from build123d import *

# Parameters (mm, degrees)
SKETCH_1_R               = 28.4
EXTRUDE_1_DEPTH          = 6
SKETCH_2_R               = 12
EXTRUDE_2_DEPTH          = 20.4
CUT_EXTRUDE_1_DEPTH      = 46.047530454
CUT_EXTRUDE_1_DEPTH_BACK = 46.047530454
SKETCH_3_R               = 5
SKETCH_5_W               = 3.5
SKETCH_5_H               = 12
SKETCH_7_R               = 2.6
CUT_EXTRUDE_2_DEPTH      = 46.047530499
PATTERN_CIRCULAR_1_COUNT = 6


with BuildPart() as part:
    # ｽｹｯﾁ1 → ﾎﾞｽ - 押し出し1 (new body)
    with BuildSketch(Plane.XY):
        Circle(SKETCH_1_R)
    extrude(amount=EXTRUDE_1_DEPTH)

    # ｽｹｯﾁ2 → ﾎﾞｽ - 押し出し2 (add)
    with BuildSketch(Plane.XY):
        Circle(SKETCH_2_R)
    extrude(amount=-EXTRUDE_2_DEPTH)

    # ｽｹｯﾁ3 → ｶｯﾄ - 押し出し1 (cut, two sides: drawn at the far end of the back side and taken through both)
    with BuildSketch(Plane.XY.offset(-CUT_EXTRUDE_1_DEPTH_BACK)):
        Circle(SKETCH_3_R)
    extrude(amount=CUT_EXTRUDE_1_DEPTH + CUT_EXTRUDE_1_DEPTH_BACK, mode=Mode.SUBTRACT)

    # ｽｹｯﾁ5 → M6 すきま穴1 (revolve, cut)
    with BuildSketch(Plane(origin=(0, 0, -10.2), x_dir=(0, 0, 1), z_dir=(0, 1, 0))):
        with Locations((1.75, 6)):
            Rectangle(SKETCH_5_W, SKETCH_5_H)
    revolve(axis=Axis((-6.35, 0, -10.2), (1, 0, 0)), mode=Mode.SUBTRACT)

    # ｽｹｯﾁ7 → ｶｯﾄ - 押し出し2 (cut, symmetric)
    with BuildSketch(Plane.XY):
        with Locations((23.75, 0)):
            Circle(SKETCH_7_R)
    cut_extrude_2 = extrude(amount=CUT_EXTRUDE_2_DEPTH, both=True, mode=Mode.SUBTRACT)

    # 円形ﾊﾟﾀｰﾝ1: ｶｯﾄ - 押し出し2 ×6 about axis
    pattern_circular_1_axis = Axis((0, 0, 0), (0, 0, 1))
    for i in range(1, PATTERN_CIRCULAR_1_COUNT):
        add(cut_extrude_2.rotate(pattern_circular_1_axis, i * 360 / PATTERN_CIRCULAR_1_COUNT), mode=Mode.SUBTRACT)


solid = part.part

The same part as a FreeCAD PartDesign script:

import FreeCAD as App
import Part
import Sketcher
from FreeCAD import Vector

doc = App.newDocument("Part")
body = doc.addObject("PartDesign::Body", "Body")

sketch1 = body.newObject("Sketcher::SketchObject", "Sketch")
sketch1.AttachmentSupport = (doc.getObject("XY_Plane"), [""])
sketch1.MapMode = "FlatFace"
sketch1.addGeometry(Part.Circle(Vector(0, 0, 0), Vector(0, 0, 1), 28), False)
sketch1.addConstraint([
    Sketcher.Constraint("Coincident", 0, 3, -1, 1),
    Sketcher.Constraint("Diameter", 0, 56.8),
])
pad1 = body.newObject("PartDesign::Pad", "Pad")
pad1.Profile = sketch1
pad1.Length = 6

sketch2 = body.newObject("Sketcher::SketchObject", "Sketch001")
sketch2.AttachmentSupport = (doc.getObject("XY_Plane"), [""])
sketch2.MapMode = "FlatFace"
sketch2.addGeometry(Part.Circle(Vector(0, 0, 0), Vector(0, 0, 1), 12), False)
sketch2.addConstraint([
    Sketcher.Constraint("Coincident", 0, 3, -1, 1),
    Sketcher.Constraint("Diameter", 0, 24.0),
])
pad2 = body.newObject("PartDesign::Pad", "Pad001")
pad2.Profile = sketch2
pad2.Length = 20.4
pad2.Reversed = True

sketch3 = body.newObject("Sketcher::SketchObject", "Sketch002")
sketch3.AttachmentSupport = (doc.getObject("XY_Plane"), [""])
sketch3.MapMode = "FlatFace"
sketch3.addGeometry(Part.Circle(Vector(0, 0, 0), Vector(0, 0, 1), 5), False)
sketch3.addConstraint([
    Sketcher.Constraint("Coincident", 0, 3, -1, 1),
    Sketcher.Constraint("Diameter", 0, 10.0),
])
pocket1 = body.newObject("PartDesign::Pocket", "Pocket")
pocket1.Profile = sketch3
pocket1.Type = "ThroughAll"
pocket1.Midplane = True

sketch4 = body.newObject("Sketcher::SketchObject", "Sketch003")
sketch4.AttachmentSupport = (doc.getObject("XZ_Plane"), [""])
sketch4.MapMode = "FlatFace"
sketch4.addGeometry([
    Part.LineSegment(Vector(12, -10.2, 0), Vector(0, -10.2, 0)),
    Part.LineSegment(Vector(0, -10.2, 0), Vector(0, -6.7, 0)),
    Part.LineSegment(Vector(0, -6.7, 0), Vector(12, -6.7, 0)),
    Part.LineSegment(Vector(12, -6.7, 0), Vector(12, -10.2, 0)),
], False)
sketch4.addGeometry(Part.LineSegment(Vector(0, -10.2, 0), Vector(12, -10.2, 0)), True)
sketch4.addConstraint([
    Sketcher.Constraint("Coincident", 0, 2, 1, 1),
    Sketcher.Constraint("Coincident", 1, 2, 2, 1),
    Sketcher.Constraint("Coincident", 2, 2, 3, 1),
    Sketcher.Constraint("Coincident", 3, 2, 0, 1),
    Sketcher.Constraint("Horizontal", 0),
    Sketcher.Constraint("Vertical", 1),
    Sketcher.Constraint("Horizontal", 2),
    Sketcher.Constraint("Vertical", 3),
    Sketcher.Constraint("Horizontal", 4),
    Sketcher.Constraint("Coincident", 4, 1, 0, 2),
    Sketcher.Constraint("PointOnObject", 0, 2, -2),
    Sketcher.Constraint("Vertical", 2, 2, 4, 2),
    Sketcher.Constraint("DistanceX", 0, 2, 0, 1, 12.0),
    Sketcher.Constraint("DistanceY", 1, 1, 1, 2, 3.5),
    Sketcher.Constraint("DistanceY", 0, 2, -1, 1, 10.2),
])
groove = body.newObject("PartDesign::Groove", "Groove")
groove.Profile = sketch4
groove.ReferenceAxis = (sketch4, ["Axis0"])
groove.Angle = 360

sketch5 = body.newObject("Sketcher::SketchObject", "Sketch004")
sketch5.AttachmentSupport = (doc.getObject("XY_Plane"), [""])
sketch5.MapMode = "FlatFace"
sketch5.addGeometry(Part.Circle(Vector(23.8, 0, 0), Vector(0, 0, 1), 2.6), False)
sketch5.addConstraint([
    Sketcher.Constraint("PointOnObject", 0, 3, -1),
    Sketcher.Constraint("Diameter", 0, 5.2),
    Sketcher.Constraint("DistanceX", -1, 1, 0, 3, 23.75),
])
pocket2 = body.newObject("PartDesign::Pocket", "Pocket001")
pocket2.Profile = sketch5
pocket2.Length = 92.095061
pocket2.Midplane = True
doc.recompute()

polarpattern = body.newObject("PartDesign::PolarPattern", "PolarPattern")
polarpattern.Originals = [pocket2]
polarpattern.Axis = (doc.getObject("Z_Axis"), [""])
polarpattern.Angle = 360
polarpattern.Occurrences = 6
body.Tip = polarpattern

doc.recompute()
